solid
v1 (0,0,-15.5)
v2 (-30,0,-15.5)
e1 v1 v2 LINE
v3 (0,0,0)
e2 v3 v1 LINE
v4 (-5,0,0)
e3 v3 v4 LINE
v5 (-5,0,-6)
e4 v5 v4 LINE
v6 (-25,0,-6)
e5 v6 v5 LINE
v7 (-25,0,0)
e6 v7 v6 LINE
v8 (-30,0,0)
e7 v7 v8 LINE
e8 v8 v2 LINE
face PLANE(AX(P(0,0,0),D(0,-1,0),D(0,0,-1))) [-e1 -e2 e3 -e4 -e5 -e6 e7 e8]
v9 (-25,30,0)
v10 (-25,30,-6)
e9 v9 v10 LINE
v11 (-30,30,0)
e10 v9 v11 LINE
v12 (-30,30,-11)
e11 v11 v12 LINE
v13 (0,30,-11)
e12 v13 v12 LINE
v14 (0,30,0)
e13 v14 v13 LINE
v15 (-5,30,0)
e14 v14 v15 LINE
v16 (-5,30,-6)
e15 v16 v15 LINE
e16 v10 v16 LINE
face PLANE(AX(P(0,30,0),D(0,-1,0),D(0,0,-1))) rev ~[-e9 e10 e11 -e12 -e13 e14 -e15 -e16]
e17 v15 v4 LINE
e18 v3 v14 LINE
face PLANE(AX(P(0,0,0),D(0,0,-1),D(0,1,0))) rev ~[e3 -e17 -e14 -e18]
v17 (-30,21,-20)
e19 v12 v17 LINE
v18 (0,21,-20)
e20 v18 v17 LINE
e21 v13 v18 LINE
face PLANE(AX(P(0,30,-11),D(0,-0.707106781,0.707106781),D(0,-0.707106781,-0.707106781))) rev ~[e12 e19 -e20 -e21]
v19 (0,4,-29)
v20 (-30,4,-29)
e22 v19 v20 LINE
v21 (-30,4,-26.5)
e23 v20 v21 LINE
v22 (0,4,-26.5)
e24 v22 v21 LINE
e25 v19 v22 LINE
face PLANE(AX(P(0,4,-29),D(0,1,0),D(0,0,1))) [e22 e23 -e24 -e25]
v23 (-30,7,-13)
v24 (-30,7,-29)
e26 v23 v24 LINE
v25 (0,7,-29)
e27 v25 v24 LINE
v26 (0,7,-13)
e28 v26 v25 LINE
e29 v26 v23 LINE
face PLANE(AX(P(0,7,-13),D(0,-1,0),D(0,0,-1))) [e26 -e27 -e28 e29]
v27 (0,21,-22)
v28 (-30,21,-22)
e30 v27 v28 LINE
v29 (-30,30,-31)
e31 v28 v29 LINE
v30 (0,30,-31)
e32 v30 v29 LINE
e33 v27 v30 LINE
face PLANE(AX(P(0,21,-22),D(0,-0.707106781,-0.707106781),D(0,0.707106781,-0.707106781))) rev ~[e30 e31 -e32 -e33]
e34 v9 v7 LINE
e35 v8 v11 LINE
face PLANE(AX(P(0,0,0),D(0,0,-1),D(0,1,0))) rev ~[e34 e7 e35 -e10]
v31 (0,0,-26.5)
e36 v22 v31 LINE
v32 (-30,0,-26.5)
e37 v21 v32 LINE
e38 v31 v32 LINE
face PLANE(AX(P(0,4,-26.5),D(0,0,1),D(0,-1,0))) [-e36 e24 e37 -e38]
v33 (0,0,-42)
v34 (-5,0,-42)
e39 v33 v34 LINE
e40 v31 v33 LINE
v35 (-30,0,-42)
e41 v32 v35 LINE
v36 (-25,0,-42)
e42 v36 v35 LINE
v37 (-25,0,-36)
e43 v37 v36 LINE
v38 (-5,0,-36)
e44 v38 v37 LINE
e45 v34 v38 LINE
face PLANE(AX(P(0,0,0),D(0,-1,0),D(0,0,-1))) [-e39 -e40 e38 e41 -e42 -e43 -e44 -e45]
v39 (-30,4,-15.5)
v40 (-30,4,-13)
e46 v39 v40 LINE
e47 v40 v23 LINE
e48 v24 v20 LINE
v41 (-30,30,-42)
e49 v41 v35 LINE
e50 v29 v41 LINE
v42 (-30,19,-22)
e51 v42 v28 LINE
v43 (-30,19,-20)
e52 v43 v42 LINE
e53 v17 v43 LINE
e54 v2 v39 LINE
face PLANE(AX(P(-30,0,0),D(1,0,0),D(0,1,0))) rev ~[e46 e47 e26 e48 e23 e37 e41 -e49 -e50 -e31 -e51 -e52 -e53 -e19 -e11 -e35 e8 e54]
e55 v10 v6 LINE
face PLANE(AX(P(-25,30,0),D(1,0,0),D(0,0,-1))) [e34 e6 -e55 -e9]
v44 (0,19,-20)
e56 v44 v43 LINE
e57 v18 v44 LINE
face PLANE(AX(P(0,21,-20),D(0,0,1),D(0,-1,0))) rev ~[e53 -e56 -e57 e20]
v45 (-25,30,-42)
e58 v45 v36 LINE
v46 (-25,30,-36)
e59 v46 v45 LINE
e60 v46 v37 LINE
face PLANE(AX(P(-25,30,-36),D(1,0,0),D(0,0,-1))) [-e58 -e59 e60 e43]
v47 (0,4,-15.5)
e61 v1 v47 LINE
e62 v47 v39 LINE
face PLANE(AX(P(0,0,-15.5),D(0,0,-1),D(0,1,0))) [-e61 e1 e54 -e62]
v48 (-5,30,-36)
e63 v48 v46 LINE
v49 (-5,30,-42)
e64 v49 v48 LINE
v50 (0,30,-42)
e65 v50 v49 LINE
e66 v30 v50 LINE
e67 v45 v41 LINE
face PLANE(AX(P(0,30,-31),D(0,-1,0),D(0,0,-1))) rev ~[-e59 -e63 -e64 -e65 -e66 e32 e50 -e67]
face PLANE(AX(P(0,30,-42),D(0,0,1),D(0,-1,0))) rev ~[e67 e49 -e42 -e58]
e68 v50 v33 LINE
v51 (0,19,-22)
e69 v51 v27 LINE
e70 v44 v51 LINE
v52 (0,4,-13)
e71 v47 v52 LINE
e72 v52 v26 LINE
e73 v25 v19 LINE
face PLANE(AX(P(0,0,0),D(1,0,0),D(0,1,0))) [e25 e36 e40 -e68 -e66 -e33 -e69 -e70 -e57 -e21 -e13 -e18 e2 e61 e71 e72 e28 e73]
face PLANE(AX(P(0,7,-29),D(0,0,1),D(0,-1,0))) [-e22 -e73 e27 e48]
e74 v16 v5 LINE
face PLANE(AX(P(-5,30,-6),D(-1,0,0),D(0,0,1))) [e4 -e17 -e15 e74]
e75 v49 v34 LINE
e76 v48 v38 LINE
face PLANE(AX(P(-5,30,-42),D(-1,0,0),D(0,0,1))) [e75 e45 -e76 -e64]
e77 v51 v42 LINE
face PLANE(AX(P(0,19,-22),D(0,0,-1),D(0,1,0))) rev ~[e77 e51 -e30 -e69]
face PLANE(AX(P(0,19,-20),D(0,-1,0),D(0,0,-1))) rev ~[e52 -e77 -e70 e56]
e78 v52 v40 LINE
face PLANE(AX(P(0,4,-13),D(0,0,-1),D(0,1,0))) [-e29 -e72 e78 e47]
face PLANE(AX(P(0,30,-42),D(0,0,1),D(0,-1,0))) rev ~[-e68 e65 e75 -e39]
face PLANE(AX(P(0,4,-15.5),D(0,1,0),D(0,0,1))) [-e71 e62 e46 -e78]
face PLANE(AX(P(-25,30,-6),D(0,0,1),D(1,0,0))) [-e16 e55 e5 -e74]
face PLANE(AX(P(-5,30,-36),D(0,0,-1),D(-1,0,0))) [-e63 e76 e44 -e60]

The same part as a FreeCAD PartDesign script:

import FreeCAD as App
import Part
import Sketcher
Q = App.Units.Quantity


def add_polygon(sketch, points):
    """Adds a closed chain of lines whose ends are joined by coincident constraints."""
    first, n = sketch.GeometryCount, len(points)
    for a, b in zip(points, points[1:] + points[:1]):
        sketch.addGeometry(Part.LineSegment(App.Vector(*a, 0), App.Vector(*b, 0)), False)
    for i in range(n):
        sketch.addConstraint(Sketcher.Constraint("Coincident", first + i, 2, first + (i + 1) % n, 1))

doc = App.newDocument("Part")
body = doc.addObject("PartDesign::Body", "Body")

# Sketch on YZ plane
sketch1 = doc.addObject("Sketcher::SketchObject", "Sketch")
body.addObject(sketch1)
sketch1.AttachmentSupport = (doc.YZ_Plane, [""])
sketch1.MapMode = "FlatFace"
add_polygon(sketch1, [(30, 0), (0, 0), (0, -42), (30, -42), (30, -31), (21, -22), (19, -22), (19, -20), (21, -20), (30, -11)])  # lines 0-9
sketch1.addConstraint(Sketcher.Constraint("Horizontal", 0))
sketch1.addConstraint(Sketcher.Constraint("Vertical", 1))
sketch1.addConstraint(Sketcher.Constraint("Horizontal", 2))
sketch1.addConstraint(Sketcher.Constraint("Vertical", 3))
sketch1.addConstraint(Sketcher.Constraint("Horizontal", 5))
sketch1.addConstraint(Sketcher.Constraint("Vertical", 6))
sketch1.addConstraint(Sketcher.Constraint("Horizontal", 7))
sketch1.addConstraint(Sketcher.Constraint("Vertical", 9))
sketch1.addConstraint(Sketcher.Constraint("Coincident", 0, 2, -1, 1))
sketch1.addConstraint(Sketcher.Constraint("Perpendicular", 4, 8))
sketch1.addConstraint(Sketcher.Constraint("Vertical", 4, 2, 7, 2))
sketch1.addConstraint(Sketcher.Constraint("Vertical", 3, 2, 8, 2))
sketch1.addConstraint(Sketcher.Constraint("Equal", 7, 6))
sketch1.addConstraint(Sketcher.Constraint("Equal", 3, 9))
sketch1.addConstraint(Sketcher.Constraint("Equal", 4, 8))
sketch1.addConstraint(Sketcher.Constraint("DistanceX", 0, 2, 0, 1, Q("30 mm")))
sketch1.addConstraint(Sketcher.Constraint("DistanceX", 5, 2, 5, 1, Q("2 mm")))
sketch1.addConstraint(Sketcher.Constraint("DistanceY", 1, 2, 1, 1, Q("42 mm")))
sketch1.addConstraint(Sketcher.Constraint("DistanceY", 3, 1, 3, 2, Q("11 mm")))
pad1 = doc.addObject("PartDesign::Pad", "Pad")
body.addObject(pad1)
pad1.Profile = sketch1
pad1.Length = 30
pad1.Reversed = True

# Sketch on XZ plane
sketch2 = doc.addObject("Sketcher::SketchObject", "Sketch001")
body.addObject(sketch2)
sketch2.AttachmentSupport = (doc.XZ_Plane, [""])
sketch2.MapMode = "FlatFace"
sketch2.AttachmentOffset = App.Placement(App.Vector(0, 0, -30), App.Rotation())
add_polygon(sketch2, [(-25, 0), (-5, 0), (-5, -6), (-25, -6)])  # lines 0-3
sketch2.addConstraint(Sketcher.Constraint("Horizontal", 0))
sketch2.addConstraint(Sketcher.Constraint("Vertical", 1))
sketch2.addConstraint(Sketcher.Constraint("Horizontal", 2))
sketch2.addConstraint(Sketcher.Constraint("Vertical", 3))
sketch2.addConstraint(Sketcher.Constraint("PointOnObject", 0, 2, -1))
sketch2.addConstraint(Sketcher.Constraint("DistanceY", 1, 2, 1, 1, Q("6 mm")))
sketch2.addConstraint(Sketcher.Constraint("DistanceX", 0, 2, -1, 1, Q("5 mm")))
sketch2.addConstraint(Sketcher.Constraint("DistanceX", 0, 1, 0, 2, Q("20 mm")))
pocket1 = doc.addObject("PartDesign::Pocket", "Pocket")
body.addObject(pocket1)
pocket1.Profile = sketch2
pocket1.Length = 30
pocket1.Reversed = True

# Sketch on XZ plane
sketch3 = doc.addObject("Sketcher::SketchObject", "Sketch002")
body.addObject(sketch3)
sketch3.AttachmentSupport = (doc.XZ_Plane, [""])
sketch3.MapMode = "FlatFace"
sketch3.AttachmentOffset = App.Placement(App.Vector(0, 0, -30), App.Rotation())
add_polygon(sketch3, [(-5, -36), (-5, -42), (-25, -42), (-25, -36)])  # lines 0-3
sketch3.addConstraint(Sketcher.Constraint("Vertical", 0))
sketch3.addConstraint(Sketcher.Constraint("Horizontal", 1))
sketch3.addConstraint(Sketcher.Constraint("Vertical", 2))
sketch3.addConstraint(Sketcher.Constraint("Horizontal", 3))
sketch3.addConstraint(Sketcher.Constraint("DistanceY", 0, 2, 0, 1, Q("6 mm")))
sketch3.addConstraint(Sketcher.Constraint("DistanceX", 0, 2, -1, 1, Q("5 mm")))
sketch3.addConstraint(Sketcher.Constraint("DistanceX", 1, 2, 1, 1, Q("20 mm")))
sketch3.addConstraint(Sketcher.Constraint("DistanceY", 0, 2, -1, 1, Q("42 mm")))
pocket2 = doc.addObject("PartDesign::Pocket", "Pocket001")
body.addObject(pocket2)
pocket2.Profile = sketch3
pocket2.Length = 30
pocket2.Reversed = True

# Sketch on YZ plane
sketch4 = doc.addObject("Sketcher::SketchObject", "Sketch003")
body.addObject(sketch4)
sketch4.AttachmentSupport = (doc.YZ_Plane, [""])
sketch4.MapMode = "FlatFace"
add_polygon(sketch4, [(0, -15.5), (0, -26.5), (4, -26.5), (4, -29), (7, -29), (7, -13), (4, -13), (4, -15.5)])  # lines 0-7
sketch4.addConstraint(Sketcher.Constraint("Vertical", 0))
sketch4.addConstraint(Sketcher.Constraint("Horizontal", 1))
sketch4.addConstraint(Sketcher.Constraint("Vertical", 2))
sketch4.addConstraint(Sketcher.Constraint("Horizontal", 3))
sketch4.addConstraint(Sketcher.Constraint("Vertical", 4))
sketch4.addConstraint(Sketcher.Constraint("Horizontal", 5))
sketch4.addConstraint(Sketcher.Constraint("Vertical", 6))
sketch4.addConstraint(Sketcher.Constraint("Horizontal", 7))
sketch4.addConstraint(Sketcher.Constraint("PointOnObject", 0, 2, -2))
sketch4.addConstraint(Sketcher.Constraint("Vertical", 2, 2, 5, 2))
sketch4.addConstraint(Sketcher.Constraint("Equal", 2, 6))
sketch4.addConstraint(Sketcher.Constraint("DistanceX", 1, 1, 1, 2, Q("4 mm")))
sketch4.addConstraint(Sketcher.Constraint("DistanceX", 3, 1, 3, 2, Q("3 mm")))
sketch4.addConstraint(Sketcher.Constraint("DistanceY", 2, 2, 2, 1, Q("2.5 mm")))
sketch4.addConstraint(Sketcher.Constraint("DistanceY", 6, 2, -1, 1, Q("15.5 mm")))
sketch4.addConstraint(Sketcher.Constraint("DistanceY", 0, 2, 0, 1, Q("11 mm")))
pocket3 = doc.addObject("PartDesign::Pocket", "Pocket002")
body.addObject(pocket3)
pocket3.Profile = sketch4
pocket3.Length = 30

doc.recompute()
